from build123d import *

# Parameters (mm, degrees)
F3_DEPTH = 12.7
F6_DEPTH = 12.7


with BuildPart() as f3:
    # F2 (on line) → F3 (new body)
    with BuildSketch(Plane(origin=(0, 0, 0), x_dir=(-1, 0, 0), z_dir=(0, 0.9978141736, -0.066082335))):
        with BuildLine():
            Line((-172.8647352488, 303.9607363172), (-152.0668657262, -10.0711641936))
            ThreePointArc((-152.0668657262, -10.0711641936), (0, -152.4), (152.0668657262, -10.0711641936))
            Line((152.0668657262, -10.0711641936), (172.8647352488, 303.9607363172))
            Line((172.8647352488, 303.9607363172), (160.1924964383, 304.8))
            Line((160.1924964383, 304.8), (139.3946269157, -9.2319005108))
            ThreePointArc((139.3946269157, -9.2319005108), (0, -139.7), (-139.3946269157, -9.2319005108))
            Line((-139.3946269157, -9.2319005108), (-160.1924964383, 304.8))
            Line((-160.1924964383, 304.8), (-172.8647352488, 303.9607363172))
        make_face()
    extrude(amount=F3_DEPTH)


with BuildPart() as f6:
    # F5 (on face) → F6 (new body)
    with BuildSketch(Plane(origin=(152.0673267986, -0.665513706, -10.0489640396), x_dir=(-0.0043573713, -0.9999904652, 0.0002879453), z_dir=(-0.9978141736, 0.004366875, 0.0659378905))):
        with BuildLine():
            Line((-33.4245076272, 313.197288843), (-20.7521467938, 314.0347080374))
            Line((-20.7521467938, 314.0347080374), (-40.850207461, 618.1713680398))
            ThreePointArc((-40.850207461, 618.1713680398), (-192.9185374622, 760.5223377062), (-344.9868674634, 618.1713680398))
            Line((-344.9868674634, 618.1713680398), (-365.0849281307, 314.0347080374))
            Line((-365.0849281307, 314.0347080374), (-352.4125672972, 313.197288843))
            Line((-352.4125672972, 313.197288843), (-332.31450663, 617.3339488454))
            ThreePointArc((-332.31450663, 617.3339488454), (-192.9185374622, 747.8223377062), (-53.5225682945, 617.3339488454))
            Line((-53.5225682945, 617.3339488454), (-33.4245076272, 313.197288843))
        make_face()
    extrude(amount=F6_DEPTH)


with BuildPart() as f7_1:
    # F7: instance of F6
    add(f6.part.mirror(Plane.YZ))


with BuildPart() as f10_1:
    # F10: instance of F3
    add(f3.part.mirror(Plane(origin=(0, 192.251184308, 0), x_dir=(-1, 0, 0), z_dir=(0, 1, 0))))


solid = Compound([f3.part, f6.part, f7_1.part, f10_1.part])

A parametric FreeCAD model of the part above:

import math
import FreeCAD as App
import Part
import Sketcher
Q = App.Units.Quantity

doc = App.newDocument("Part")
body = doc.addObject("PartDesign::Body", "Body")

# Sketch on an angled plane
sketch1 = doc.addObject("Sketcher::SketchObject", "Sketch")
body.addObject(sketch1)
sketch1.Placement = App.Placement(App.Vector(0, 0, 0), App.Rotation(App.Vector(-1, 0, 0), App.Vector(0, 0.066082335, 0.997814174), App.Vector(0, 0.997814174, -0.066082335), "ZXY"))
sketch1.addGeometry([
    Part.LineSegment(App.Vector(-172.864735, 303.960737, 0), App.Vector(-152.066866, -10.071164, 0)),  # 0
    Part.ArcOfCircle(Part.Circle(App.Vector(0, 0, 0), App.Vector(0, 0, 1), 152.4), math.radians(-176.210918), math.radians(-3.789082)),  # 1
    Part.LineSegment(App.Vector(152.066866, -10.071164, 0), App.Vector(172.864735, 303.960737, 0)),  # 2
    Part.LineSegment(App.Vector(172.864735, 303.960737, 0), App.Vector(160.192496, 304.8, 0)),  # 3
    Part.LineSegment(App.Vector(160.192496, 304.8, 0), App.Vector(139.394627, -9.231901, 0)),  # 4
    Part.ArcOfCircle(Part.Circle(App.Vector(0, 0, 0), App.Vector(0, 0, 1), 139.7), math.radians(-176.210918), math.radians(-3.789082)),  # 5
    Part.LineSegment(App.Vector(-139.394627, -9.231901, 0), App.Vector(-160.192496, 304.8, 0)),  # 6
    Part.LineSegment(App.Vector(-160.192496, 304.8, 0), App.Vector(-172.864735, 303.960737, 0)),  # 7
], False)
sketch1.addConstraint([
    Sketcher.Constraint("Tangent", 0, 2, 1, 1),
    Sketcher.Constraint("Tangent", 1, 2, 2, 1),
    Sketcher.Constraint("Coincident", 2, 2, 3, 1),
    Sketcher.Constraint("Coincident", 3, 2, 4, 1),
    Sketcher.Constraint("Tangent", 4, 2, 5, 2),
    Sketcher.Constraint("Tangent", 5, 1, 6, 1),
    Sketcher.Constraint("Coincident", 6, 2, 7, 1),
    Sketcher.Constraint("Coincident", 7, 2, 0, 1),
    Sketcher.Constraint("Coincident", 1, 3, -1, 1),
    Sketcher.Constraint("Coincident", 5, 3, -1, 1),
    Sketcher.Constraint("Symmetric", 3, 2, 6, 2, -2),
    Sketcher.Constraint("Symmetric", 2, 2, 7, 2, -2),
    Sketcher.Constraint("Perpendicular", 2, 3),
    Sketcher.Constraint("Perpendicular", 3, 4),
    Sketcher.Constraint("Radius", 1, Q("6 in")),
    Sketcher.Constraint("Radius", 5, Q("5.5 in")),
    Sketcher.Constraint("DistanceY", -1, 1, 3, 2, Q("12 in")),
    Sketcher.Constraint("DistanceY", 4, 2, -1, 1, Q("9.231901 mm")),
])
pad1 = doc.addObject("PartDesign::Pad", "Pad")
body.addObject(pad1)
pad1.Profile = sketch1
pad1.Length = Q("0.5 in")
body2 = doc.addObject("PartDesign::Body", "Body001")

# Sketch on an angled plane
sketch2 = doc.addObject("Sketcher::SketchObject", "Sketch001")
body2.addObject(sketch2)
sketch2.Placement = App.Placement(App.Vector(152.067327, -0.665514, -10.048964), App.Rotation(App.Vector(-0.004357371, -0.999990465, 0.000287945), App.Vector(0.065938519, 0, 0.997823688), App.Vector(-0.997814174, 0.004366875, 0.06593789), "ZXY"))
sketch2.addGeometry([
    Part.LineSegment(App.Vector(-33.424508, 313.197289, 0), App.Vector(-20.752147, 314.034708, 0)),  # 0
    Part.LineSegment(App.Vector(-20.752147, 314.034708, 0), App.Vector(-40.850207, 618.171368, 0)),  # 1
    Part.ArcOfCircle(Part.Circle(App.Vector(-192.918537, 608.122338, 0), App.Vector(0, 0, 1), 152.4), math.radians(3.780742), math.radians(176.219258)),  # 2
    Part.LineSegment(App.Vector(-344.986867, 618.171368, 0), App.Vector(-365.084928, 314.034708, 0)),  # 3
    Part.LineSegment(App.Vector(-365.084928, 314.034708, 0), App.Vector(-352.412567, 313.197289, 0)),  # 4
    Part.LineSegment(App.Vector(-352.412567, 313.197289, 0), App.Vector(-332.314507, 617.333949, 0)),  # 5
    Part.ArcOfCircle(Part.Circle(App.Vector(-192.918537, 608.122338, 0), App.Vector(0, 0, 1), 139.7), math.radians(3.780742), math.radians(176.219258)),  # 6
    Part.LineSegment(App.Vector(-53.522568, 617.333949, 0), App.Vector(-33.424508, 313.197289, 0)),  # 7
], False)
sketch2.addConstraint([
    Sketcher.Constraint("Coincident", 0, 2, 1, 1),
    Sketcher.Constraint("Tangent", 1, 2, 2, 1),
    Sketcher.Constraint("Tangent", 2, 2, 3, 1),
    Sketcher.Constraint("Coincident", 3, 2, 4, 1),
    Sketcher.Constraint("Coincident", 4, 2, 5, 1),
    Sketcher.Constraint("Tangent", 5, 2, 6, 2),
    Sketcher.Constraint("Tangent", 6, 1, 7, 1),
    Sketcher.Constraint("Coincident", 7, 2, 0, 1),
    Sketcher.Constraint("Coincident", 6, 3, 2, 3),
    Sketcher.Constraint("Perpendicular", 0, 1),
    Sketcher.Constraint("Perpendicular", 3, 4),
    Sketcher.Constraint("Perpendicular", 4, 5),
    Sketcher.Constraint("Parallel", 1, 7),
    Sketcher.Constraint("Horizontal", 1, 2, 2, 2),
    Sketcher.Constraint("Horizontal", 0, 2, 3, 2),
    Sketcher.Constraint("Radius", 2, Q("6 in")),
    Sketcher.Constraint("Radius", 6, Q("5.5 in")),
    Sketcher.Constraint("Distance", 1, Q("12 in")),
    Sketcher.Constraint("DistanceX", 4, 2, 2, 2, Q("7.4257 mm")),
    Sketcher.Constraint("DistanceY", -1, 1, 0, 2, Q("314.034708 mm")),
    Sketcher.Constraint("DistanceX", 3, 2, -1, 1, Q("365.084928 mm")),
])
pad2 = doc.addObject("PartDesign::Pad", "Pad001")
body2.addObject(pad2)
pad2.Profile = sketch2
pad2.Length = Q("0.5 in")
body3 = doc.addObject("PartDesign::Body", "Body002")
doc.recompute()

mirroring = doc.addObject("Part::Mirroring", "Mirroring")
mirroring.Source = body2
mirroring.Base = App.Vector(0, 0, 0)
mirroring.Normal = App.Vector(1, 0, 0)
body3.BaseFeature = mirroring
doc.recompute()
body4 = doc.addObject("PartDesign::Body", "Body003")
doc.recompute()

mirroring2 = doc.addObject("Part::Mirroring", "Mirroring001")
mirroring2.Source = body
mirroring2.Base = App.Vector(0, 192.251184, 0)
mirroring2.Normal = App.Vector(0, 1, 0)
body4.BaseFeature = mirroring2
doc.recompute()
mirroring.Visibility = False
mirroring2.Visibility = False

doc.recompute()
